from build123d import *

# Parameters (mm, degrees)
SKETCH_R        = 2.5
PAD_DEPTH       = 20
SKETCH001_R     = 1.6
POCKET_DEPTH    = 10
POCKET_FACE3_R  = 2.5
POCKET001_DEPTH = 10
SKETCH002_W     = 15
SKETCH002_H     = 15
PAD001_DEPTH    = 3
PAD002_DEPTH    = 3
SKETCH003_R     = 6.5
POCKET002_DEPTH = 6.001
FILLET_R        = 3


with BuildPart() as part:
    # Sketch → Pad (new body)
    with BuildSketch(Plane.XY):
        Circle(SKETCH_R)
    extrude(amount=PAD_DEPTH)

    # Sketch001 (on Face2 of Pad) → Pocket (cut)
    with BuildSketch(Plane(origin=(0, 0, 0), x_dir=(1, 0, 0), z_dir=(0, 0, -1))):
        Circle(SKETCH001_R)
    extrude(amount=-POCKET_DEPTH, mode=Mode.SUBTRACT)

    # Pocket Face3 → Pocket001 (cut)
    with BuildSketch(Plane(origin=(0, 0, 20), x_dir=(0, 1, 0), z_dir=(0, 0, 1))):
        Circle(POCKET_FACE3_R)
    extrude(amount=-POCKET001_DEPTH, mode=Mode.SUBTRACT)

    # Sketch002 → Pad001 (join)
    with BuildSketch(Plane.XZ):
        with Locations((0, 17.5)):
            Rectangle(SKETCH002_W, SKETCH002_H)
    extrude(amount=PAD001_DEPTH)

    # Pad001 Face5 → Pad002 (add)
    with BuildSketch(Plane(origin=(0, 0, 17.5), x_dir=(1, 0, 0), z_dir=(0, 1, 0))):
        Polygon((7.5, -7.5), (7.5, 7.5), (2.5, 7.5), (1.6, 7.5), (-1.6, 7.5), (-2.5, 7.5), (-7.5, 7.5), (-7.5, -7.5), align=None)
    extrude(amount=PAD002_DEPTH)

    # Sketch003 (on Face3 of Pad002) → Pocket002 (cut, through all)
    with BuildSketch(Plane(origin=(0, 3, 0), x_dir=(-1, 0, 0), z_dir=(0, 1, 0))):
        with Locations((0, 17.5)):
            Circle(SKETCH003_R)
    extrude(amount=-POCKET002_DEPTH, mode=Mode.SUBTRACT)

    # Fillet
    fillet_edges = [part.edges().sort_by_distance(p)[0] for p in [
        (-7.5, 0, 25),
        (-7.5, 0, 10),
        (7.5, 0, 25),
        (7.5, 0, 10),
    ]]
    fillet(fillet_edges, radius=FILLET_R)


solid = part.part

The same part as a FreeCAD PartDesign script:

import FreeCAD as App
import Part
import Sketcher

V = App.Vector


def edges_at(feature, points):
    """Names of the edges that pass closest to the given points."""
    edges = feature.Shape.Edges
    near = lambda p: min(range(len(edges)), key=lambda i: edges[i].distToShape(Part.Vertex(*p))[0])
    return sorted({f"Edge{near(p) + 1}" for p in points})


def add_polygon(sketch, points):
    """Adds a closed chain of lines whose ends are joined by coincident constraints."""
    first, n = sketch.GeometryCount, len(points)
    for a, b in zip(points, points[1:] + points[:1]):
        sketch.addGeometry(Part.LineSegment(App.Vector(*a, 0), App.Vector(*b, 0)), False)
    for i in range(n):
        sketch.addConstraint(Sketcher.Constraint("Coincident", first + i, 2, first + (i + 1) % n, 1))

doc = App.newDocument("Part")
body = doc.addObject("PartDesign::Body", "Body")

# Sketch on XY plane
sketch1 = doc.addObject("Sketcher::SketchObject", "Sketch")
body.addObject(sketch1)
sketch1.AttachmentSupport = (doc.XY_Plane, [""])
sketch1.MapMode = "FlatFace"
sketch1.addGeometry(Part.Circle(V(0, 0, 0), V(0, 0, 1), 2.5), False)
sketch1.addConstraint([
    Sketcher.Constraint("Coincident", 0, 3, -1, 1),
    Sketcher.Constraint("Diameter", 0, 5.0),
])
pad1 = doc.addObject("PartDesign::Pad", "Pad")
body.addObject(pad1)
pad1.Profile = sketch1
pad1.Length = 20

# Sketch on XY plane
sketch2 = doc.addObject("Sketcher::SketchObject", "Sketch001")
body.addObject(sketch2)
sketch2.AttachmentSupport = (doc.XY_Plane, [""])
sketch2.MapMode = "FlatFace"
sketch2.addGeometry(Part.Circle(V(0, 0, 0), V(0, 0, 1), 1.6), False)
sketch2.addConstraint([
    Sketcher.Constraint("Coincident", 0, 3, -1, 1),
    Sketcher.Constraint("Diameter", 0, 3.2),
])
pocket1 = doc.addObject("PartDesign::Pocket", "Pocket")
body.addObject(pocket1)
pocket1.Profile = sketch2
pocket1.Length = 10
pocket1.Reversed = True

# Sketch on XY plane
sketch3 = doc.addObject("Sketcher::SketchObject", "Sketch002")
body.addObject(sketch3)
sketch3.AttachmentSupport = (doc.XY_Plane, [""])
sketch3.MapMode = "FlatFace"
sketch3.AttachmentOffset = App.Placement(V(0, 0, 20), App.Rotation())
sketch3.addGeometry(Part.Circle(V(0, 0, 0), V(0, 0, 1), 2.5), False)
sketch3.addConstraint([
    Sketcher.Constraint("Coincident", 0, 3, -1, 1),
    Sketcher.Constraint("Diameter", 0, 5.0),
])
pocket2 = doc.addObject("PartDesign::Pocket", "Pocket001")
body.addObject(pocket2)
pocket2.Profile = sketch3
pocket2.Length = 10

# Sketch on XZ plane
sketch4 = doc.addObject("Sketcher::SketchObject", "Sketch003")
body.addObject(sketch4)
sketch4.AttachmentSupport = (doc.XZ_Plane, [""])
sketch4.MapMode = "FlatFace"
add_polygon(sketch4, [(-8, 25), (-8, 10), (8, 10), (8, 25)])  # lines 0-3
sketch4.addConstraint([
    Sketcher.Constraint("Vertical", 0),
    Sketcher.Constraint("Horizontal", 1),
    Sketcher.Constraint("Vertical", 2),
    Sketcher.Constraint("Horizontal", 3),
    Sketcher.Constraint("Equal", 3, 0),
    Sketcher.Constraint("DistanceX", 1, 1, 1, 2, 15.0),
    Sketcher.Constraint("DistanceY", -1, 1, 0, 2, 10.0),
    Sketcher.Constraint("DistanceX", 0, 2, -1, 1, 7.5),
])
pad2 = doc.addObject("PartDesign::Pad", "Pad001")
body.addObject(pad2)
pad2.Profile = sketch4
pad2.Length = 3

# Sketch on XZ plane
sketch5 = doc.addObject("Sketcher::SketchObject", "Sketch004")
body.addObject(sketch5)
sketch5.AttachmentSupport = (doc.XZ_Plane, [""])
sketch5.MapMode = "FlatFace"
add_polygon(sketch5, [(8, 25), (8, 10), (-8, 10), (-8, 25)])  # lines 0-3
sketch5.addConstraint([
    Sketcher.Constraint("Vertical", 0),
    Sketcher.Constraint("Horizontal", 1),
    Sketcher.Constraint("Vertical", 2),
    Sketcher.Constraint("Horizontal", 3),
    Sketcher.Constraint("Equal", 3, 0),
    Sketcher.Constraint("DistanceX", 1, 2, 1, 1, 15.0),
    Sketcher.Constraint("DistanceY", -1, 1, 0, 2, 10.0),
    Sketcher.Constraint("DistanceX", -1, 1, 0, 2, 7.5),
])
pad3 = doc.addObject("PartDesign::Pad", "Pad002")
body.addObject(pad3)
pad3.Profile = sketch5
pad3.Length = 3
pad3.Reversed = True

# Sketch on XZ plane
sketch6 = doc.addObject("Sketcher::SketchObject", "Sketch005")
body.addObject(sketch6)
sketch6.AttachmentSupport = (doc.XZ_Plane, [""])
sketch6.MapMode = "FlatFace"
sketch6.AttachmentOffset = App.Placement(V(0, 0, -3), App.Rotation())
sketch6.addGeometry(Part.Circle(V(0, 18, 0), V(0, 0, 1), 6), False)
sketch6.addConstraint([
    Sketcher.Constraint("PointOnObject", 0, 3, -2),
    Sketcher.Constraint("Diameter", 0, 13.0),
    Sketcher.Constraint("DistanceY", -1, 1, 0, 3, 17.5),
])
pocket3 = doc.addObject("PartDesign::Pocket", "Pocket002")
body.addObject(pocket3)
pocket3.Profile = sketch6
pocket3.Type = "ThroughAll"
pocket3.Reversed = True
doc.recompute()

fillet = doc.addObject("PartDesign::Fillet", "Fillet")
body.addObject(fillet)
fillet.Base = (pocket3, edges_at(pocket3, [
    (-7.5, 0, 25),
    (-7.5, 0, 10),
    (7.5, 0, 25),
    (7.5, 0, 10),
]))
fillet.Radius = 3

doc.recompute()
